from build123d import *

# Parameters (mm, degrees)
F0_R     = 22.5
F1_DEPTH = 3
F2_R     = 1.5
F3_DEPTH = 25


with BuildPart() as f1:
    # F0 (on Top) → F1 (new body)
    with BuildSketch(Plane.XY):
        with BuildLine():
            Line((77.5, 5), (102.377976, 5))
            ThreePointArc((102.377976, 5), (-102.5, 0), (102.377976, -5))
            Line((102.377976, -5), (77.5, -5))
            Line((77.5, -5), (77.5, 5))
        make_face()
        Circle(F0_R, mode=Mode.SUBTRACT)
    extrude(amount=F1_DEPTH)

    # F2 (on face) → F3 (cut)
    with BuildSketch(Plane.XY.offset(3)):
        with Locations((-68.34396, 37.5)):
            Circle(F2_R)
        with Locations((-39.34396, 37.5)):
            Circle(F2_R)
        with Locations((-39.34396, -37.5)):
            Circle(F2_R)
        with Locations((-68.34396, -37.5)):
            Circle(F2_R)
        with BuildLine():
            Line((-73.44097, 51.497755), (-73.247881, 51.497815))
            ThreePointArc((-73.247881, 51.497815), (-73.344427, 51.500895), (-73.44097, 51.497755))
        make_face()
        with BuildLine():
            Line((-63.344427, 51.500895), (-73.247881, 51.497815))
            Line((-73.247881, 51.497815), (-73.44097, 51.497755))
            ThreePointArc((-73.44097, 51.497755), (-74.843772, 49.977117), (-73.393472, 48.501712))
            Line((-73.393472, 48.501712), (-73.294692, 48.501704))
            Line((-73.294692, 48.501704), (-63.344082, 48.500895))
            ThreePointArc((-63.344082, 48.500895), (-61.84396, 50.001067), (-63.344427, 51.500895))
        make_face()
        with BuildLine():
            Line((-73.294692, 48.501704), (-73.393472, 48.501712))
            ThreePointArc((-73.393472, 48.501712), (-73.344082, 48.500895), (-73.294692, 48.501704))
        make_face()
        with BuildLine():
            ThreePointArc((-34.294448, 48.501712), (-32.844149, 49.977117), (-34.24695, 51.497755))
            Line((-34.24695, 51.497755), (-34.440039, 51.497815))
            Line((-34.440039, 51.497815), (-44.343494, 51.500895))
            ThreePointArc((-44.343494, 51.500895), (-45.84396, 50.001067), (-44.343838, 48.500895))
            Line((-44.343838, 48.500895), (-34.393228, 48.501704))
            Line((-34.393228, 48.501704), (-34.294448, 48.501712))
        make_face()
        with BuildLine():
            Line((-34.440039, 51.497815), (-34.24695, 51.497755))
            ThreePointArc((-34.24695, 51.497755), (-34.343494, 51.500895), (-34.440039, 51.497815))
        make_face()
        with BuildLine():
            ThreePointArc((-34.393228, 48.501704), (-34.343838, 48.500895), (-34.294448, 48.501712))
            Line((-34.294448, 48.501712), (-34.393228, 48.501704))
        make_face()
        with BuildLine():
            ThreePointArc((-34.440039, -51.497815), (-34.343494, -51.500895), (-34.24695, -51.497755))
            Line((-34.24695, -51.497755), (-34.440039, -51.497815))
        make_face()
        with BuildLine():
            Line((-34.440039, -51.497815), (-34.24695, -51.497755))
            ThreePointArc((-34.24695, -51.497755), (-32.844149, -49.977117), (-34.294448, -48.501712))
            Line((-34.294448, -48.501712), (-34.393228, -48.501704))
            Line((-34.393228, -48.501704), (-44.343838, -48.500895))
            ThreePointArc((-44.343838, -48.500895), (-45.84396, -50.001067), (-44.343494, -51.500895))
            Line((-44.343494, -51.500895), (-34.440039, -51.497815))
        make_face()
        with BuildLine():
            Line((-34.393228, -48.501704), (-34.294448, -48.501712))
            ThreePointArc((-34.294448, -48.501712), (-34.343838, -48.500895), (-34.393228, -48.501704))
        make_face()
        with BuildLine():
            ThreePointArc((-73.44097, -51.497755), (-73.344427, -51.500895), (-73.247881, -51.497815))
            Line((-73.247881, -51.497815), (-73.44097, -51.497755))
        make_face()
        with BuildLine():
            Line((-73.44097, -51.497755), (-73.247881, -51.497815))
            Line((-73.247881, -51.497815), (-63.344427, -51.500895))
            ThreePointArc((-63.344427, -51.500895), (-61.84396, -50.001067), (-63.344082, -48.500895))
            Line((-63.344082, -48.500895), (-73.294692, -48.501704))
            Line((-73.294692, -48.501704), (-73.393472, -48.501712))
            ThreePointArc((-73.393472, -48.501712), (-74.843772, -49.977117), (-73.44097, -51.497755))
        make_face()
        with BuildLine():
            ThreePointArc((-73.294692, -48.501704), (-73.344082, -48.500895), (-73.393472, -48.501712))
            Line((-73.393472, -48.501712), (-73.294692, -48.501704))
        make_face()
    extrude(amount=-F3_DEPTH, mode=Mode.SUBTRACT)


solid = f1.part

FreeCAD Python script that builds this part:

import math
import FreeCAD as App
import Part
import Sketcher

doc = App.newDocument("Part")
params = doc.addObject("Spreadsheet::Sheet", "Params")
for row, (alias, value) in enumerate([
    ("sketch1_diameter", "45 mm"),
    ("sketch1_radius", "102.5 mm"),
    ("sketch1_height", "10 mm"),
    ("pad1_length", "3 mm"),
    ("sketch2_diameter", "3 mm"),
    ("pocket1_length", "25 mm"),
], start=1):
    params.set(f"A{row}", alias)
    params.set(f"B{row}", "=" + value)
    params.setAlias(f"B{row}", alias)

body = doc.addObject("PartDesign::Body", "Body")

sketch1 = body.newObject("Sketcher::SketchObject", "Sketch")
sketch1.AttachmentSupport = (doc.getObject("XY_Plane"), [""])
sketch1.MapMode = "FlatFace"
sketch1.addGeometry(Part.LineSegment(App.Vector(78, 5, 0), App.Vector(102, 5, 0)), False)
sketch1.addGeometry(Part.ArcOfCircle(Part.Circle(App.Vector(0, 0, 0), App.Vector(0, 0, 1), 102), math.radians(3), math.radians(357)), False)
sketch1.addGeometry(Part.LineSegment(App.Vector(102, -5, 0), App.Vector(78, -5, 0)), False)
sketch1.addGeometry(Part.LineSegment(App.Vector(78, -5, 0), App.Vector(78, 5, 0)), False)
sketch1.addGeometry(Part.Circle(App.Vector(0, 0, 0), App.Vector(0, 0, 1), 22), False)
sketch1.addConstraint(Sketcher.Constraint("Coincident", 0, 2, 1, 1))
sketch1.addConstraint(Sketcher.Constraint("Coincident", 1, 2, 2, 1))
sketch1.addConstraint(Sketcher.Constraint("Coincident", 2, 2, 3, 1))
sketch1.addConstraint(Sketcher.Constraint("Coincident", 3, 2, 0, 1))
sketch1.addConstraint(Sketcher.Constraint("Horizontal", 0))
sketch1.addConstraint(Sketcher.Constraint("Horizontal", 2))
sketch1.addConstraint(Sketcher.Constraint("Vertical", 3))
sketch1.addConstraint(Sketcher.Constraint("Coincident", 1, 3, -1, 1))
sketch1.addConstraint(Sketcher.Constraint("Coincident", 4, 3, -1, 1))
sketch1.addConstraint(Sketcher.Constraint("Vertical", 0, 2, 1, 2))
sketch1.addConstraint(Sketcher.Constraint("Diameter", 4, 45.0))
sketch1.addConstraint(Sketcher.Constraint("Radius", 1, 102.5))
sketch1.addConstraint(Sketcher.Constraint("DistanceY", 3, 1, 3, 2, 10.0))
sketch1.addConstraint(Sketcher.Constraint("DistanceX", -1, 1, 2, 2, 77.5))
sketch1.setExpression("Constraints[10]", "Params.sketch1_diameter")
sketch1.setExpression("Constraints[11]", "Params.sketch1_radius")
sketch1.setExpression("Constraints[12]", "Params.sketch1_height")
pad1 = body.newObject("PartDesign::Pad", "Pad")
pad1.Profile = sketch1
pad1.setExpression("Length", "Params.pad1_length")

sketch2 = body.newObject("Sketcher::SketchObject", "Sketch001")
sketch2.AttachmentSupport = (doc.getObject("XY_Plane"), [""])
sketch2.MapMode = "FlatFace"
sketch2.AttachmentOffset = App.Placement(App.Vector(0, 0, 3), App.Rotation())
sketch2.addGeometry(Part.Circle(App.Vector(-68.34, 37.5, 0), App.Vector(0, 0, 1), 1.5), False)
sketch2.addGeometry(Part.Circle(App.Vector(-39.34, 37.5, 0), App.Vector(0, 0, 1), 1.5), False)
sketch2.addGeometry(Part.Circle(App.Vector(-39.34, -37.5, 0), App.Vector(0, 0, 1), 1.5), False)
sketch2.addGeometry(Part.Circle(App.Vector(-68.34, -37.5, 0), App.Vector(0, 0, 1), 1.5), False)
sketch2.addGeometry(Part.ArcOfCircle(Part.Circle(App.Vector(-73.34, 50, 0), App.Vector(0, 0, 1), 1.5), math.radians(86.33), math.radians(93.71)), False)
sketch2.addGeometry(Part.ArcOfCircle(Part.Circle(App.Vector(-73.34, 50, 0), App.Vector(0, 0, 1), 1.5), math.radians(94), math.radians(268)), False)
sketch2.addGeometry(Part.ArcOfCircle(Part.Circle(App.Vector(-73.34, 50, 0), App.Vector(0, 0, 1), 1.5), math.radians(-91.89), math.radians(-88.12)), False)
sketch2.addGeometry(Part.LineSegment(App.Vector(-73.29, 48.5, 0), App.Vector(-63.34, 48.5, 0)), False)
sketch2.addGeometry(Part.ArcOfCircle(Part.Circle(App.Vector(-63.34, 50, 0), App.Vector(0, 0, 1), 1.5), math.radians(-90), math.radians(90)), False)
sketch2.addGeometry(Part.LineSegment(App.Vector(-63.34, 51.5, 0), App.Vector(-73.25, 51.5, 0)), False)
sketch2.addGeometry(Part.ArcOfCircle(Part.Circle(App.Vector(-34.34, 50, 0), App.Vector(0, 0, 1), 1.5), math.radians(-88), math.radians(86)), False)
sketch2.addGeometry(Part.ArcOfCircle(Part.Circle(App.Vector(-34.34, 50, 0), App.Vector(0, 0, 1), 1.5), math.radians(86.29), math.radians(93.67)), False)
sketch2.addGeometry(Part.LineSegment(App.Vector(-34.44, 51.5, 0), App.Vector(-44.34, 51.5, 0)), False)
sketch2.addGeometry(Part.ArcOfCircle(Part.Circle(App.Vector(-44.34, 50, 0), App.Vector(0, 0, 1), 1.5), math.radians(90), math.radians(270)), False)
sketch2.addGeometry(Part.LineSegment(App.Vector(-44.34, 48.5, 0), App.Vector(-34.39, 48.5, 0)), False)
sketch2.addGeometry(Part.ArcOfCircle(Part.Circle(App.Vector(-34.34, 50, 0), App.Vector(0, 0, 1), 1.5), math.radians(-91.88), math.radians(-88.11)), False)
sketch2.addGeometry(Part.ArcOfCircle(Part.Circle(App.Vector(-34.34, -50, 0), App.Vector(0, 0, 1), 1.5), math.radians(-93.67), math.radians(-86.29)), False)
sketch2.addGeometry(Part.ArcOfCircle(Part.Circle(App.Vector(-34.34, -50, 0), App.Vector(0, 0, 1), 1.5), math.radians(-86), math.radians(88)), False)
sketch2.addGeometry(Part.ArcOfCircle(Part.Circle(App.Vector(-34.34, -50, 0), App.Vector(0, 0, 1), 1.5), math.radians(88.11), math.radians(91.88)), False)
sketch2.addGeometry(Part.LineSegment(App.Vector(-34.39, -48.5, 0), App.Vector(-44.34, -48.5, 0)), False)
sketch2.addGeometry(Part.ArcOfCircle(Part.Circle(App.Vector(-44.34, -50, 0), App.Vector(0, 0, 1), 1.5), math.radians(90), math.radians(270)), False)
sketch2.addGeometry(Part.LineSegment(App.Vector(-44.34, -51.5, 0), App.Vector(-34.44, -51.5, 0)), False)
sketch2.addGeometry(Part.ArcOfCircle(Part.Circle(App.Vector(-73.34, -50, 0), App.Vector(0, 0, 1), 1.5), math.radians(-93.71), math.radians(-86.33)), False)
sketch2.addGeometry(Part.LineSegment(App.Vector(-73.25, -51.5, 0), App.Vector(-63.34, -51.5, 0)), False)
sketch2.addGeometry(Part.ArcOfCircle(Part.Circle(App.Vector(-63.34, -50, 0), App.Vector(0, 0, 1), 1.5), math.radians(-90), math.radians(90)), False)
sketch2.addGeometry(Part.LineSegment(App.Vector(-63.34, -48.5, 0), App.Vector(-73.29, -48.5, 0)), False)
sketch2.addGeometry(Part.ArcOfCircle(Part.Circle(App.Vector(-73.34, -50, 0), App.Vector(0, 0, 1), 1.5), math.radians(88.12), math.radians(91.89)), False)
sketch2.addGeometry(Part.ArcOfCircle(Part.Circle(App.Vector(-73.34, -50, 0), App.Vector(0, 0, 1), 1.5), math.radians(92), math.radians(266)), False)
sketch2.addConstraint(Sketcher.Constraint("Coincident", 4, 2, 5, 1))
sketch2.addConstraint(Sketcher.Constraint("Coincident", 5, 2, 6, 1))
sketch2.addConstraint(Sketcher.Constraint("Coincident", 6, 2, 7, 1))
sketch2.addConstraint(Sketcher.Constraint("Tangent", 7, 2, 8, 1))
sketch2.addConstraint(Sketcher.Constraint("Tangent", 8, 2, 9, 1))
sketch2.addConstraint(Sketcher.Constraint("Coincident", 9, 2, 4, 1))
sketch2.addConstraint(Sketcher.Constraint("Coincident", 10, 2, 11, 1))
sketch2.addConstraint(Sketcher.Constraint("Coincident", 11, 2, 12, 1))
sketch2.addConstraint(Sketcher.Constraint("Tangent", 12, 2, 13, 1))
sketch2.addConstraint(Sketcher.Constraint("Tangent", 13, 2, 14, 1))
sketch2.addConstraint(Sketcher.Constraint("Coincident", 14, 2, 15, 1))
sketch2.addConstraint(Sketcher.Constraint("Coincident", 15, 2, 10, 1))
sketch2.addConstraint(Sketcher.Constraint("Coincident", 16, 2, 17, 1))
sketch2.addConstraint(Sketcher.Constraint("Coincident", 17, 2, 18, 1))
sketch2.addConstraint(Sketcher.Constraint("Coincident", 18, 2, 19, 1))
sketch2.addConstraint(Sketcher.Constraint("Tangent", 19, 2, 20, 1))
sketch2.addConstraint(Sketcher.Constraint("Tangent", 20, 2, 21, 1))
sketch2.addConstraint(Sketcher.Constraint("Coincident", 21, 2, 16, 1))
sketch2.addConstraint(Sketcher.Constraint("Coincident", 22, 2, 23, 1))
sketch2.addConstraint(Sketcher.Constraint("Tangent", 23, 2, 24, 1))
sketch2.addConstraint(Sketcher.Constraint("Tangent", 24, 2, 25, 1))
sketch2.addConstraint(Sketcher.Constraint("Coincident", 25, 2, 26, 1))
sketch2.addConstraint(Sketcher.Constraint("Coincident", 26, 2, 27, 1))
sketch2.addConstraint(Sketcher.Constraint("Coincident", 27, 2, 22, 1))
sketch2.addConstraint(Sketcher.Constraint("Equal", 0, 1))
sketch2.addConstraint(Sketcher.Constraint("Equal", 1, 2))
sketch2.addConstraint(Sketcher.Constraint("Equal", 2, 3))
sketch2.addConstraint(Sketcher.Constraint("Equal", 3, 5))
sketch2.addConstraint(Sketcher.Constraint("Equal", 5, 8))
sketch2.addConstraint(Sketcher.Constraint("Equal", 8, 10))
sketch2.addConstraint(Sketcher.Constraint("Equal", 4, 11))
sketch2.addConstraint(Sketcher.Constraint("Equal", 10, 13))
sketch2.addConstraint(Sketcher.Constraint("Equal", 6, 15))
sketch2.addConstraint(Sketcher.Constraint("Equal", 11, 16))
sketch2.addConstraint(Sketcher.Constraint("Equal", 13, 17))
sketch2.addConstraint(Sketcher.Constraint("Equal", 15, 18))
sketch2.addConstraint(Sketcher.Constraint("Equal", 17, 20))
sketch2.addConstraint(Sketcher.Constraint("Equal", 16, 22))
sketch2.addConstraint(Sketcher.Constraint("Equal", 20, 24))
sketch2.addConstraint(Sketcher.Constraint("Equal", 18, 26))
sketch2.addConstraint(Sketcher.Constraint("Equal", 24, 27))
sketch2.addConstraint(Sketcher.Constraint("Symmetric", 1, 3, 2, 3, -1))
sketch2.addConstraint(Sketcher.Constraint("Symmetric", 0, 3, 3, 3, -1))
sketch2.addConstraint(Sketcher.Constraint("Symmetric", 11, 3, 16, 3, -1))
sketch2.addConstraint(Sketcher.Constraint("Symmetric", 15, 3, 18, 3, -1))
sketch2.addConstraint(Sketcher.Constraint("Symmetric", 13, 3, 20, 3, -1))
sketch2.addConstraint(Sketcher.Constraint("Symmetric", 4, 3, 22, 3, -1))
sketch2.addConstraint(Sketcher.Constraint("Symmetric", 8, 3, 24, 3, -1))
sketch2.addConstraint(Sketcher.Constraint("Symmetric", 6, 3, 26, 3, -1))
sketch2.addConstraint(Sketcher.Constraint("Parallel", 7, 19))
sketch2.addConstraint(Sketcher.Constraint("Parallel", 9, 21))
sketch2.addConstraint(Sketcher.Constraint("Parallel", 12, 23))
sketch2.addConstraint(Sketcher.Constraint("Parallel", 14, 25))
sketch2.addConstraint(Sketcher.Constraint("Horizontal", 0, 3, 1, 3))
sketch2.addConstraint(Sketcher.Constraint("Horizontal", 5, 3, 8, 3))
sketch2.addConstraint(Sketcher.Constraint("Horizontal", 8, 3, 10, 3))
sketch2.addConstraint(Sketcher.Constraint("Horizontal", 4, 3, 11, 3))
sketch2.addConstraint(Sketcher.Constraint("Horizontal", 10, 3, 13, 3))
sketch2.addConstraint(Sketcher.Constraint("Horizontal", 6, 3, 15, 3))
sketch2.addConstraint(Sketcher.Constraint("Horizontal", 4, 2, 10, 2))
sketch2.addConstraint(Sketcher.Constraint("Horizontal", 9, 2, 11, 2))
sketch2.addConstraint(Sketcher.Constraint("Horizontal", 6, 2, 14, 2))
sketch2.addConstraint(Sketcher.Constraint("Horizontal", 5, 2, 15, 2))
sketch2.addConstraint(Sketcher.Constraint("Horizontal", 17, 2, 26, 2))
sketch2.addConstraint(Sketcher.Constraint("Horizontal", 16, 2, 27, 2))
sketch2.addConstraint(Sketcher.Constraint("Vertical", 4, 3, 5, 3))
sketch2.addConstraint(Sketcher.Constraint("Vertical", 5, 3, 6, 3))
sketch2.addConstraint(Sketcher.Constraint("Vertical", 10, 2, 16, 2))
sketch2.addConstraint(Sketcher.Constraint("Vertical", 15, 2, 17, 2))
sketch2.addConstraint(Sketcher.Constraint("Equal", 9, 12))
sketch2.addConstraint(Sketcher.Constraint("Diameter", 0, 3.0))
sketch2.addConstraint(Sketcher.Constraint("DistanceX", 0, 3, 1, 3, 29.0))
sketch2.addConstraint(Sketcher.Constraint("DistanceY", 2, 3, 1, 3, 75.0))
sketch2.addConstraint(Sketcher.Constraint("DistanceX", 4, 3, 0, 3, 5.0))
sketch2.addConstraint(Sketcher.Constraint("DistanceX", 5, 3, 8, 3, 10.0))
sketch2.addConstraint(Sketcher.Constraint("DistanceX", 1, 3, 10, 3, 4.999999))
sketch2.addConstraint(Sketcher.Constraint("Radius", 4, 1.500082))
sketch2.addConstraint(Sketcher.Constraint("Radius", 6, 1.500635))
sketch2.addConstraint(Sketcher.Constraint("DistanceY", 5, 2, 4, 3, 1.499101))
sketch2.addConstraint(Sketcher.Constraint("DistanceX", 4, 2, 5, 2, 0.047498))
sketch2.addConstraint(Sketcher.Constraint("Distance", 7, 9.95061))
sketch2.addConstraint(Sketcher.Constraint("DistanceX", 0, 3, -1, 1, 68.34396))
sketch2.addConstraint(Sketcher.Constraint("DistanceY", -1, 1, 6, 3, 50.00153))
sketch2.addConstraint(Sketcher.Constraint("DistanceX", 9, 2, -1, 1, 73.247881))
sketch2.setExpression("Constraints[70]", "Params.sketch2_diameter")
pocket1 = body.newObject("PartDesign::Pocket", "Pocket")
pocket1.Profile = sketch2
pocket1.setExpression("Length", "Params.pocket1_length")

doc.recompute()
